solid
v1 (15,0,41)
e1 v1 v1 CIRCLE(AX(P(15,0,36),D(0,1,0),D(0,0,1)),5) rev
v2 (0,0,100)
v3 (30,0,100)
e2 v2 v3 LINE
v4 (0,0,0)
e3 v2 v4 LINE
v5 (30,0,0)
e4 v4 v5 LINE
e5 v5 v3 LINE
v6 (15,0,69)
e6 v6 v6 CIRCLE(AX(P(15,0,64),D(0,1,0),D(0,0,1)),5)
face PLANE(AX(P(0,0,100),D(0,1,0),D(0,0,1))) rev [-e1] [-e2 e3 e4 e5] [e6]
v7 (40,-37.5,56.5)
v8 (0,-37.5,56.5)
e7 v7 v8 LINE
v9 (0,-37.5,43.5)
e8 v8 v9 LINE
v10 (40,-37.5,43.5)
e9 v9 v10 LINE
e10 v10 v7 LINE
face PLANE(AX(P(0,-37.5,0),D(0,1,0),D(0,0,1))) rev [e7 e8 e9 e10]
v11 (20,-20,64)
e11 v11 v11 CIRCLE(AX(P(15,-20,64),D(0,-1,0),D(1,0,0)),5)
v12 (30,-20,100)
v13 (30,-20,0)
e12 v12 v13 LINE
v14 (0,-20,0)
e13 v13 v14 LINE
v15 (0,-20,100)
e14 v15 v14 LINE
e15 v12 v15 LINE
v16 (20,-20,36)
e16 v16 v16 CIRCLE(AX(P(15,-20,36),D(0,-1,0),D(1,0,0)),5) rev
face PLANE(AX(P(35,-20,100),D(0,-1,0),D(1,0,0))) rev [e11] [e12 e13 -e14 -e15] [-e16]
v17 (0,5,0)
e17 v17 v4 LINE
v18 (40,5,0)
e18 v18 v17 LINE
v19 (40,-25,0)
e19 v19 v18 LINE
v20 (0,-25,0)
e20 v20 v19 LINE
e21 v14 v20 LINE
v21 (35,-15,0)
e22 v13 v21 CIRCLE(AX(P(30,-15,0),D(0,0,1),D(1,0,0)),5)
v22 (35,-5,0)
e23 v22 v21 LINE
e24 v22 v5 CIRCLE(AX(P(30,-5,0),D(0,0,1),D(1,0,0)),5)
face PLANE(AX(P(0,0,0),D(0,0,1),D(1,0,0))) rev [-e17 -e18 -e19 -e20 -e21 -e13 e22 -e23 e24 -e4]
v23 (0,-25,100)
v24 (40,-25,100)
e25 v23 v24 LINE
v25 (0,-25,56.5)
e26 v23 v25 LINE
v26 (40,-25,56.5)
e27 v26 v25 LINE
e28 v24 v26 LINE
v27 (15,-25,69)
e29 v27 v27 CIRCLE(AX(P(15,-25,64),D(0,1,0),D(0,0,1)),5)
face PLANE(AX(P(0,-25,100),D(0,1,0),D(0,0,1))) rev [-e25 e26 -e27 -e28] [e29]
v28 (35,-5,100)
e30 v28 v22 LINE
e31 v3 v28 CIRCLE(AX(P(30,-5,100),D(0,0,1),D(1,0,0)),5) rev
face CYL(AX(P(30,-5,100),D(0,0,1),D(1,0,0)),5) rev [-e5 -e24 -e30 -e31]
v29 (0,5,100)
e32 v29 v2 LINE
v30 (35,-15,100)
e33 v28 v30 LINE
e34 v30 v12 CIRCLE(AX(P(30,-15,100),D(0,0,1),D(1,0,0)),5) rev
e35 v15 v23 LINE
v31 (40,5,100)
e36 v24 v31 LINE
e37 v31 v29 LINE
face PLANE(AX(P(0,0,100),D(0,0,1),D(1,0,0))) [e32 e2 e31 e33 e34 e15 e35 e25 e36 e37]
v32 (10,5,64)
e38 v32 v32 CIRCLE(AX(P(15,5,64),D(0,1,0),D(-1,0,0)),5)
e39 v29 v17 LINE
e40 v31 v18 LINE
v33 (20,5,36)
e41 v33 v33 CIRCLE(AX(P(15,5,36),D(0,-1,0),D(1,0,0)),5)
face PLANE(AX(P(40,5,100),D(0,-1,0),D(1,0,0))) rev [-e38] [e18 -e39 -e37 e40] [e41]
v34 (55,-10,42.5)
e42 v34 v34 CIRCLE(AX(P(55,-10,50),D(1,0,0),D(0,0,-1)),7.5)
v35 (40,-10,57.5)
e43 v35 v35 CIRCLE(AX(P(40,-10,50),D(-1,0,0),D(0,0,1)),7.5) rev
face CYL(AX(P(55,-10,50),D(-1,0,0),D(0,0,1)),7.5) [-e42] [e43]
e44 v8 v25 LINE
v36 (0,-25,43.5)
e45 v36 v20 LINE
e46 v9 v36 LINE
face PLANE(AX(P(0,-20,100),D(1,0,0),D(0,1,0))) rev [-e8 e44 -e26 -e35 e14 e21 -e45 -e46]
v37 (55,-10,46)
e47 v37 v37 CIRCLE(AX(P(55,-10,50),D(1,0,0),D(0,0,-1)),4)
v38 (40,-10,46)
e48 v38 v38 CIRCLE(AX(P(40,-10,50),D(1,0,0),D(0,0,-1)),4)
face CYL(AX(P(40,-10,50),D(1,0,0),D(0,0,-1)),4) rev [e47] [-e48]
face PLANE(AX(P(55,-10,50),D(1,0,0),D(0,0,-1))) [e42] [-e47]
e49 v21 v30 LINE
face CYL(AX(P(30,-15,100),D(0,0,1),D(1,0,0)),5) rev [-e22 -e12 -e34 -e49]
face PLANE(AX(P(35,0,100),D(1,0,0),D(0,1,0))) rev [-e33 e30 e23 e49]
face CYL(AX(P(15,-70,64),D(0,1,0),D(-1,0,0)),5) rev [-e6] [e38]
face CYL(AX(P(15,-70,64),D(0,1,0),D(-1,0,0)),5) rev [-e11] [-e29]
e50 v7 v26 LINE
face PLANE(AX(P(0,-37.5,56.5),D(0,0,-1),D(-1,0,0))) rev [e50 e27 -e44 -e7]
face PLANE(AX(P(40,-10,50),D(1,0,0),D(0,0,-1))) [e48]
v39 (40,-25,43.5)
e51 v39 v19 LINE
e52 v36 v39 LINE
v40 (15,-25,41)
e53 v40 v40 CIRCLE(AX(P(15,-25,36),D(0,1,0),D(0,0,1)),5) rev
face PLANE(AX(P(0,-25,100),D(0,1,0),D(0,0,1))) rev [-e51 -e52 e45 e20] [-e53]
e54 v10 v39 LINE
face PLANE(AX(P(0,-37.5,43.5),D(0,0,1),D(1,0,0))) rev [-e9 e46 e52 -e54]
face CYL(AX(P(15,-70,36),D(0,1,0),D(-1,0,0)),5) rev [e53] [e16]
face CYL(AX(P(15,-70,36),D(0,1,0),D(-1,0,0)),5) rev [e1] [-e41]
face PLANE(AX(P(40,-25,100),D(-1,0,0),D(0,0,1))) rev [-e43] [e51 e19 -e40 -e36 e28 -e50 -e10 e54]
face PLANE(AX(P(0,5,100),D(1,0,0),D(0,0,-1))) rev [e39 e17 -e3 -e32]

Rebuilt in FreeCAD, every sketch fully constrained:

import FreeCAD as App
import Part
import Sketcher
from FreeCAD import Vector
Q = App.Units.Quantity


def edges_at(feature, points):
    """Names of the edges that pass closest to the given points."""
    edges = feature.Shape.Edges
    near = lambda p: min(range(len(edges)), key=lambda i: edges[i].distToShape(Part.Vertex(*p))[0])
    return sorted({f"Edge{near(p) + 1}" for p in points})

doc = App.newDocument("Part")
body = doc.addObject("PartDesign::Body", "Body")

sketch1 = doc.addObject("Sketcher::SketchObject", "Sketch")
body.addObject(sketch1)
sketch1.AttachmentSupport = (doc.XY_Plane, [""])
sketch1.MapMode = "FlatFace"
sketch1.addGeometry(Part.LineSegment(Vector(0, 0, 0), Vector(35, 0, 0)), False)
sketch1.addGeometry(Part.LineSegment(Vector(35, 0, 0), Vector(35, -20, 0)), False)
sketch1.addGeometry(Part.LineSegment(Vector(35, -20, 0), Vector(0, -20, 0)), False)
sketch1.addGeometry(Part.LineSegment(Vector(0, -20, 0), Vector(0, -25, 0)), False)
sketch1.addGeometry(Part.LineSegment(Vector(0, -25, 0), Vector(40, -25, 0)), False)
sketch1.addGeometry(Part.LineSegment(Vector(40, -25, 0), Vector(40, 5, 0)), False)
sketch1.addGeometry(Part.LineSegment(Vector(40, 5, 0), Vector(0, 5, 0)), False)
sketch1.addGeometry(Part.LineSegment(Vector(0, 5, 0), Vector(0, 0, 0)), False)
sketch1.addConstraint(Sketcher.Constraint("Coincident", 0, 2, 1, 1))
sketch1.addConstraint(Sketcher.Constraint("Coincident", 1, 2, 2, 1))
sketch1.addConstraint(Sketcher.Constraint("Coincident", 2, 2, 3, 1))
sketch1.addConstraint(Sketcher.Constraint("Coincident", 3, 2, 4, 1))
sketch1.addConstraint(Sketcher.Constraint("Coincident", 4, 2, 5, 1))
sketch1.addConstraint(Sketcher.Constraint("Coincident", 5, 2, 6, 1))
sketch1.addConstraint(Sketcher.Constraint("Coincident", 6, 2, 7, 1))
sketch1.addConstraint(Sketcher.Constraint("Coincident", 7, 2, 0, 1))
sketch1.addConstraint(Sketcher.Constraint("Horizontal", 0))
sketch1.addConstraint(Sketcher.Constraint("Vertical", 1))
sketch1.addConstraint(Sketcher.Constraint("Horizontal", 2))
sketch1.addConstraint(Sketcher.Constraint("Vertical", 3))
sketch1.addConstraint(Sketcher.Constraint("Horizontal", 4))
sketch1.addConstraint(Sketcher.Constraint("Vertical", 5))
sketch1.addConstraint(Sketcher.Constraint("Horizontal", 6))
sketch1.addConstraint(Sketcher.Constraint("Vertical", 7))
sketch1.addConstraint(Sketcher.Constraint("Coincident", 7, 2, -1, 1))
sketch1.addConstraint(Sketcher.Constraint("PointOnObject", 2, 2, -2))
sketch1.addConstraint(Sketcher.Constraint("Equal", 3, 7))
sketch1.addConstraint(Sketcher.Constraint("DistanceX", 0, 1, 0, 2, Q("35 mm")))
sketch1.addConstraint(Sketcher.Constraint("DistanceX", 4, 1, 4, 2, Q("40 mm")))
sketch1.addConstraint(Sketcher.Constraint("DistanceY", 1, 2, 1, 1, Q("20 mm")))
sketch1.addConstraint(Sketcher.Constraint("DistanceY", 3, 2, 3, 1, Q("5 mm")))
pad1 = doc.addObject("PartDesign::Pad", "Pad")
body.addObject(pad1)
pad1.Profile = sketch1
pad1.Length = 100
doc.recompute()

fillet = doc.addObject("PartDesign::Fillet", "Fillet")
body.addObject(fillet)
fillet.Base = (pad1, edges_at(pad1, [(35, -20, 50), (35, 0, 50)]))
fillet.Radius = 5

sketch2 = doc.addObject("Sketcher::SketchObject", "Sketch001")
body.addObject(sketch2)
sketch2.AttachmentSupport = (doc.XZ_Plane, [""])
sketch2.MapMode = "FlatFace"
sketch2.AttachmentOffset = App.Placement(Vector(0, 0, -5), App.Rotation())
sketch2.addGeometry(Part.Circle(Vector(15, 64, 0), Vector(0, 0, 1), 5), False)
sketch2.addGeometry(Part.Circle(Vector(15, 36, 0), Vector(0, 0, 1), 5), False)
sketch2.addConstraint(Sketcher.Constraint("Equal", 0, 1))
sketch2.addConstraint(Sketcher.Constraint("Vertical", 0, 3, 1, 3))
sketch2.addConstraint(Sketcher.Constraint("Diameter", 0, Q("10 mm")))
sketch2.addConstraint(Sketcher.Constraint("DistanceX", -1, 1, 0, 3, Q("15 mm")))
sketch2.addConstraint(Sketcher.Constraint("DistanceY", -1, 1, 0, 3, Q("64 mm")))
sketch2.addConstraint(Sketcher.Constraint("DistanceY", -1, 1, 1, 3, Q("36 mm")))
pocket1 = doc.addObject("PartDesign::Pocket", "Pocket")
body.addObject(pocket1)
pocket1.Profile = sketch2
pocket1.Length = 75
pocket1.Reversed = True

sketch3 = doc.addObject("Sketcher::SketchObject", "Sketch002")
body.addObject(sketch3)
sketch3.AttachmentSupport = (doc.XZ_Plane, [""])
sketch3.MapMode = "FlatFace"
sketch3.AttachmentOffset = App.Placement(Vector(0, 0, 25), App.Rotation())
sketch3.addGeometry(Part.LineSegment(Vector(0, 56, 0), Vector(0, 44, 0)), False)
sketch3.addGeometry(Part.LineSegment(Vector(0, 44, 0), Vector(40, 44, 0)), False)
sketch3.addGeometry(Part.LineSegment(Vector(40, 44, 0), Vector(40, 56, 0)), False)
sketch3.addGeometry(Part.LineSegment(Vector(40, 56, 0), Vector(0, 56, 0)), False)
sketch3.addConstraint(Sketcher.Constraint("Coincident", 0, 2, 1, 1))
sketch3.addConstraint(Sketcher.Constraint("Coincident", 1, 2, 2, 1))
sketch3.addConstraint(Sketcher.Constraint("Coincident", 2, 2, 3, 1))
sketch3.addConstraint(Sketcher.Constraint("Coincident", 3, 2, 0, 1))
sketch3.addConstraint(Sketcher.Constraint("Vertical", 0))
sketch3.addConstraint(Sketcher.Constraint("Horizontal", 1))
sketch3.addConstraint(Sketcher.Constraint("Vertical", 2))
sketch3.addConstraint(Sketcher.Constraint("Horizontal", 3))
sketch3.addConstraint(Sketcher.Constraint("PointOnObject", 0, 2, -2))
sketch3.addConstraint(Sketcher.Constraint("DistanceX", 1, 1, 1, 2, Q("40 mm")))
sketch3.addConstraint(Sketcher.Constraint("DistanceY", 0, 2, 0, 1, Q("13 mm")))
sketch3.addConstraint(Sketcher.Constraint("DistanceY", -1, 1, 0, 2, Q("43.5 mm")))
pad2 = doc.addObject("PartDesign::Pad", "Pad001")
body.addObject(pad2)
pad2.Profile = sketch3
pad2.Length = 12.5

sketch4 = doc.addObject("Sketcher::SketchObject", "Sketch003")
body.addObject(sketch4)
sketch4.AttachmentSupport = (doc.YZ_Plane, [""])
sketch4.MapMode = "FlatFace"
sketch4.AttachmentOffset = App.Placement(Vector(0, 0, 40), App.Rotation())
sketch4.addGeometry(Part.Circle(Vector(-10, 50, 0), Vector(0, 0, 1), 8), False)
sketch4.addConstraint(Sketcher.Constraint("Diameter", 0, Q("15 mm")))
sketch4.addConstraint(Sketcher.Constraint("DistanceX", 0, 3, -1, 1, Q("10 mm")))
sketch4.addConstraint(Sketcher.Constraint("DistanceY", -1, 1, 0, 3, Q("50 mm")))
pad3 = doc.addObject("PartDesign::Pad", "Pad002")
body.addObject(pad3)
pad3.Profile = sketch4
pad3.Length = 15

sketch5 = doc.addObject("Sketcher::SketchObject", "Sketch004")
body.addObject(sketch5)
sketch5.AttachmentSupport = (doc.YZ_Plane, [""])
sketch5.MapMode = "FlatFace"
sketch5.AttachmentOffset = App.Placement(Vector(0, 0, 55), App.Rotation())
sketch5.addGeometry(Part.Circle(Vector(-10, 50, 0), Vector(0, 0, 1), 4), False)
sketch5.addConstraint(Sketcher.Constraint("Diameter", 0, Q("8 mm")))
sketch5.addConstraint(Sketcher.Constraint("DistanceX", 0, 3, -1, 1, Q("10 mm")))
sketch5.addConstraint(Sketcher.Constraint("DistanceY", -1, 1, 0, 3, Q("50 mm")))
pocket2 = doc.addObject("PartDesign::Pocket", "Pocket001")
body.addObject(pocket2)
pocket2.Profile = sketch5
pocket2.Length = 15

doc.recompute()
